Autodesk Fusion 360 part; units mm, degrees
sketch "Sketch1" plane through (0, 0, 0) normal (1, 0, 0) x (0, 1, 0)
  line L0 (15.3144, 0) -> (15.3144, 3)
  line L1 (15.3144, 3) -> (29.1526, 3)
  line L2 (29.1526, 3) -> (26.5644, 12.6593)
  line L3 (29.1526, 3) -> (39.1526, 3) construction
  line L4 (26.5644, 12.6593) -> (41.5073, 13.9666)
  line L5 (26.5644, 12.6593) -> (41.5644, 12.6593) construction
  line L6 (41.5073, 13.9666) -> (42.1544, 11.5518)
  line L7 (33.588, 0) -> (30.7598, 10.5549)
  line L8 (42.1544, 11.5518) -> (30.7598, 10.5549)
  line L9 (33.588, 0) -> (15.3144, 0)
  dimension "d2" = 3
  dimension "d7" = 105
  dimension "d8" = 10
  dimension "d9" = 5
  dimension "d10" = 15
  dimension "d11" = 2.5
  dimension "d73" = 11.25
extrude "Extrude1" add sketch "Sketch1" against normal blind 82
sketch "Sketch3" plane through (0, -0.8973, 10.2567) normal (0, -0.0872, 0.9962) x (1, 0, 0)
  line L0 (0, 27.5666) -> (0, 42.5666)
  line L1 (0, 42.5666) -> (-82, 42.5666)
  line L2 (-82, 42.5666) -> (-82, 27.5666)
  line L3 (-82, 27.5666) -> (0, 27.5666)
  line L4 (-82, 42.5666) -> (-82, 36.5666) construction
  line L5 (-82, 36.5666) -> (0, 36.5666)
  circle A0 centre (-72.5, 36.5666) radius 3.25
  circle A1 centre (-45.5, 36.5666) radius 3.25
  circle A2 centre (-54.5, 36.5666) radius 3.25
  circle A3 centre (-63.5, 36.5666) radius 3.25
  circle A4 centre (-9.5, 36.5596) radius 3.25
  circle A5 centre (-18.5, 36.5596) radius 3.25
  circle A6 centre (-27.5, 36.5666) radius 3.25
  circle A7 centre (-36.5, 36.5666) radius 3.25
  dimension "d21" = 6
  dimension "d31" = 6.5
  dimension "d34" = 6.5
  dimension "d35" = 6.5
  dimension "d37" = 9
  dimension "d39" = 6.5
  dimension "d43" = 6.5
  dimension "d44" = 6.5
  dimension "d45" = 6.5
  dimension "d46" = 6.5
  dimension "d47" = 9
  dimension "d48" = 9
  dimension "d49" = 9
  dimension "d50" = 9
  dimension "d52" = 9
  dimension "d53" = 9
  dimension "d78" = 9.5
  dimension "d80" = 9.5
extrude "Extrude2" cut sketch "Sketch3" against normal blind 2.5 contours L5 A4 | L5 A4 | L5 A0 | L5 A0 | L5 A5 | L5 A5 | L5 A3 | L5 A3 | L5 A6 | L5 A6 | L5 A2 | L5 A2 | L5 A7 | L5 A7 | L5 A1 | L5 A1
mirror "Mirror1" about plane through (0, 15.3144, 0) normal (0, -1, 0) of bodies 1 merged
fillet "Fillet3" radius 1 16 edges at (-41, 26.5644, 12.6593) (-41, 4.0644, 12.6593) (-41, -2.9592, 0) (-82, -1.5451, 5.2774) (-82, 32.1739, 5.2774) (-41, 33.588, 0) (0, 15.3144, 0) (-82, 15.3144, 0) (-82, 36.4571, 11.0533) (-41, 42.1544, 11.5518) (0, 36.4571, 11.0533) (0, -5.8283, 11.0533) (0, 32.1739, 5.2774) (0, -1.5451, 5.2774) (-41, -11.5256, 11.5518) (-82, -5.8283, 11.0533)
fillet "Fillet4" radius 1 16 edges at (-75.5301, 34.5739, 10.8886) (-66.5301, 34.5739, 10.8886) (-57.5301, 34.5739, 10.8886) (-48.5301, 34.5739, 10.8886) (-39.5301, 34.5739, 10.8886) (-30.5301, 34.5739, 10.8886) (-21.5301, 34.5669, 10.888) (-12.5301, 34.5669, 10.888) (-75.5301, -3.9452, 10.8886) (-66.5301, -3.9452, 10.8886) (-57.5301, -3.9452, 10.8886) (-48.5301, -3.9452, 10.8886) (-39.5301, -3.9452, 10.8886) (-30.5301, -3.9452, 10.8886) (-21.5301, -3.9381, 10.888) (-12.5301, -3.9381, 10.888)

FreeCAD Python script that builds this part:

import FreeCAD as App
import Part
import Sketcher
from FreeCAD import Vector
Q = App.Units.Quantity


def edges_at(feature, points):
    """Names of the edges that pass closest to the given points."""
    edges = feature.Shape.Edges
    near = lambda p: min(range(len(edges)), key=lambda i: edges[i].distToShape(Part.Vertex(*p))[0])
    return sorted({f"Edge{near(p) + 1}" for p in points})


def add_polygon(sketch, points):
    """Adds a closed chain of lines whose ends are joined by coincident constraints."""
    first, n = sketch.GeometryCount, len(points)
    for a, b in zip(points, points[1:] + points[:1]):
        sketch.addGeometry(Part.LineSegment(App.Vector(*a, 0), App.Vector(*b, 0)), False)
    for i in range(n):
        sketch.addConstraint(Sketcher.Constraint("Coincident", first + i, 2, first + (i + 1) % n, 1))

doc = App.newDocument("Part")
params = doc.addObject("Spreadsheet::Sheet", "Params")
for row, (alias, value) in enumerate([
    ("sketch1_height", "3 mm"),
    ("sketch1_length", "15 mm"),
    ("sketch1_length2", "10 mm"),
    ("sketch1_length3", "2.5 mm"),
    ("pad1_length", "82 mm"),
    ("sketch2_diameter", "6.5 mm"),
    ("pocket1_length", "2.5 mm"),
    ("fillet_radius", "1 mm"),
    ("fillet2_radius", "1 mm"),
], start=1):
    params.set(f"A{row}", alias)
    params.set(f"B{row}", "=" + value)
    params.setAlias(f"B{row}", alias)

body = doc.addObject("PartDesign::Body", "Body")

# Sketch on YZ plane
sketch1 = body.newObject("Sketcher::SketchObject", "Sketch")
sketch1.AttachmentSupport = (doc.getObject("YZ_Plane"), [""])
sketch1.MapMode = "FlatFace"
add_polygon(sketch1, [(15.3, 3), (15.3, 0), (33.6, 0), (30.8, 10.6), (42.2, 11.6), (41.5, 14), (26.6, 12.7), (29.2, 3)])  # lines 0-7
sketch1.addConstraint(Sketcher.Constraint("Vertical", 0))
sketch1.addConstraint(Sketcher.Constraint("Horizontal", 1))
sketch1.addConstraint(Sketcher.Constraint("Horizontal", 7))
sketch1.addConstraint(Sketcher.Constraint("PointOnObject", 0, 2, -1))
sketch1.addConstraint(Sketcher.Constraint("Parallel", 2, 4))
sketch1.addConstraint(Sketcher.Constraint("Parallel", 3, 5))
sketch1.addConstraint(Sketcher.Constraint("Parallel", 4, 6))
sketch1.addConstraint(Sketcher.Constraint("DistanceY", 0, 2, 0, 1, 3.0))
sketch1.addConstraint(Sketcher.Constraint("Angle", 2, Q("105 deg")))
sketch1.addConstraint(Sketcher.Constraint("Angle", 3, Q("5 deg")))
sketch1.addConstraint(Sketcher.Constraint("Distance", 5, 15.0))
sketch1.addConstraint(Sketcher.Constraint("Distance", 6, 10.0))
sketch1.addConstraint(Sketcher.Constraint("Distance", 4, 2.5))
sketch1.addConstraint(Sketcher.Constraint("DistanceX", 0, 2, 5, 2, 11.25))
sketch1.addConstraint(Sketcher.Constraint("DistanceX", 1, 1, 1, 2, 18.2736))
sketch1.addConstraint(Sketcher.Constraint("DistanceX", -1, 1, 1, 2, 33.588))
sketch1.setExpression("Constraints[15]", "Params.sketch1_height")
sketch1.setExpression("Constraints[18]", "Params.sketch1_length")
sketch1.setExpression("Constraints[19]", "Params.sketch1_length2")
sketch1.setExpression("Constraints[20]", "Params.sketch1_length3")
pad1 = body.newObject("PartDesign::Pad", "Pad")
pad1.Profile = sketch1
pad1.setExpression("Length", "Params.pad1_length")
pad1.Reversed = True

# Sketch on an angled plane
sketch2 = body.newObject("Sketcher::SketchObject", "Sketch001")
sketch2.Placement = App.Placement(Vector(0, -0.8973, 10.2567), App.Rotation(Vector(1, 0, 0), Vector(0, 0.996194698, 0.087155743), Vector(0, -0.087155743, 0.996194698), "ZXY"))
sketch2.addGeometry(Part.Circle(Vector(-9.5, 36.6, 0), Vector(0, 0, 1), 3.2), False)
sketch2.addGeometry(Part.Circle(Vector(-72.5, 36.6, 0), Vector(0, 0, 1), 3.2), False)
sketch2.addGeometry(Part.Circle(Vector(-18.5, 36.6, 0), Vector(0, 0, 1), 3.2), False)
sketch2.addGeometry(Part.Circle(Vector(-63.5, 36.6, 0), Vector(0, 0, 1), 3.2), False)
sketch2.addGeometry(Part.Circle(Vector(-27.5, 36.6, 0), Vector(0, 0, 1), 3.2), False)
sketch2.addGeometry(Part.Circle(Vector(-54.5, 36.6, 0), Vector(0, 0, 1), 3.2), False)
sketch2.addGeometry(Part.Circle(Vector(-36.5, 36.6, 0), Vector(0, 0, 1), 3.2), False)
sketch2.addGeometry(Part.Circle(Vector(-45.5, 36.6, 0), Vector(0, 0, 1), 3.2), False)
sketch2.addConstraint(Sketcher.Constraint("Equal", 0, 1))
sketch2.addConstraint(Sketcher.Constraint("Equal", 1, 2))
sketch2.addConstraint(Sketcher.Constraint("Equal", 2, 3))
sketch2.addConstraint(Sketcher.Constraint("Equal", 3, 4))
sketch2.addConstraint(Sketcher.Constraint("Equal", 4, 5))
sketch2.addConstraint(Sketcher.Constraint("Equal", 5, 6))
sketch2.addConstraint(Sketcher.Constraint("Equal", 6, 7))
sketch2.addConstraint(Sketcher.Constraint("Horizontal", 0, 3, 2, 3))
sketch2.addConstraint(Sketcher.Constraint("Horizontal", 1, 3, 3, 3))
sketch2.addConstraint(Sketcher.Constraint("Horizontal", 3, 3, 4, 3))
sketch2.addConstraint(Sketcher.Constraint("Horizontal", 4, 3, 5, 3))
sketch2.addConstraint(Sketcher.Constraint("Horizontal", 5, 3, 6, 3))
sketch2.addConstraint(Sketcher.Constraint("Horizontal", 6, 3, 7, 3))
sketch2.addConstraint(Sketcher.Constraint("Diameter", 0, 6.5))
sketch2.addConstraint(Sketcher.Constraint("DistanceX", 2, 3, 0, 3, 9.0))
sketch2.addConstraint(Sketcher.Constraint("DistanceX", 1, 3, 3, 3, 9.0))
sketch2.addConstraint(Sketcher.Constraint("DistanceX", 4, 3, 2, 3, 9.0))
sketch2.addConstraint(Sketcher.Constraint("DistanceX", 3, 3, 5, 3, 9.0))
sketch2.addConstraint(Sketcher.Constraint("DistanceX", 6, 3, 4, 3, 9.0))
sketch2.addConstraint(Sketcher.Constraint("DistanceX", 5, 3, 7, 3, 9.0))
sketch2.addConstraint(Sketcher.Constraint("DistanceX", 7, 3, 6, 3, 9.0))
sketch2.addConstraint(Sketcher.Constraint("DistanceX", 0, 3, -1, 1, 9.5))
sketch2.addConstraint(Sketcher.Constraint("DistanceY", 0, 3, 1, 3, 0.007))
sketch2.addConstraint(Sketcher.Constraint("DistanceY", -1, 1, 0, 3, 36.5596))
sketch2.setExpression("Constraints[13]", "Params.sketch2_diameter")
pocket1 = body.newObject("PartDesign::Pocket", "Pocket")
pocket1.Profile = sketch2
pocket1.setExpression("Length", "Params.pocket1_length")
doc.recompute()

datumplane = body.newObject("PartDesign::Plane", "DatumPlane")
datumplane.AttachmentSupport = (doc.getObject("XZ_Plane"), [""])
datumplane.MapMode = "FlatFace"
datumplane.AttachmentOffset = App.Placement(Vector(0, 0, -15.3144), App.Rotation())
mirrored = body.newObject("PartDesign::Mirrored", "Mirrored")
mirrored.TransformMode = "Transform body"
mirrored.MirrorPlane = (datumplane, [""])
body.Tip = mirrored
doc.recompute()

fillet = body.newObject("PartDesign::Fillet", "Fillet")
fillet.Base = (mirrored, edges_at(mirrored, [
    (-41, 26.564, 12.659),
    (-41, 4.064, 12.659),
    (-41, -2.959, 0),
    (-82, -1.545, 5.277),
    (-82, 32.174, 5.277),
    (-41, 33.588, 0),
    (0, 15.314, 0),
    (-82, 15.314, 0),
    (-82, 36.457, 11.053),
    (-41, 42.154, 11.552),
    (0, 36.457, 11.053),
    (0, -5.828, 11.053),
    (0, 32.174, 5.277),
    (0, -1.545, 5.277),
    (-41, -11.526, 11.552),
    (-82, -5.828, 11.053),
]))
fillet.setExpression("Radius", "Params.fillet_radius")
doc.recompute()

fillet2 = body.newObject("PartDesign::Fillet", "Fillet001")
fillet2.Base = (fillet, edges_at(fillet, [
    (-75.53, 34.574, 10.889),
    (-66.53, 34.574, 10.889),
    (-57.53, 34.574, 10.889),
    (-48.53, 34.574, 10.889),
    (-39.53, 34.574, 10.889),
    (-30.53, 34.574, 10.889),
    (-21.53, 34.567, 10.888),
    (-12.53, 34.567, 10.888),
    (-75.53, -3.945, 10.889),
    (-66.53, -3.945, 10.889),
    (-57.53, -3.945, 10.889),
    (-48.53, -3.945, 10.889),
    (-39.53, -3.945, 10.889),
    (-30.53, -3.945, 10.889),
    (-21.53, -3.938, 10.888),
    (-12.53, -3.938, 10.888),
]))
fillet2.setExpression("Radius", "Params.fillet2_radius")

doc.recompute()
